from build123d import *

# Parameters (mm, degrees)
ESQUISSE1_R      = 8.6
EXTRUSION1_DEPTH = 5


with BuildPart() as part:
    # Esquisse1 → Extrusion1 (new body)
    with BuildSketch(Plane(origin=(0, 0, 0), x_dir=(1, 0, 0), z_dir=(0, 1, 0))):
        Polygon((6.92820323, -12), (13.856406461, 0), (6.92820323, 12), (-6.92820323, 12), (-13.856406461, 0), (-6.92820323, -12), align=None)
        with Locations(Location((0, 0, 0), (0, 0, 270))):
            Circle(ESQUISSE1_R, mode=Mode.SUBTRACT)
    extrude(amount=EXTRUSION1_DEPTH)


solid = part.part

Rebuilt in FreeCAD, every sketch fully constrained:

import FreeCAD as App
import Part
import Sketcher
from FreeCAD import Vector
Q = App.Units.Quantity


def add_polygon(sketch, points):
    """Adds a closed chain of lines whose ends are joined by coincident constraints."""
    first, n = sketch.GeometryCount, len(points)
    for a, b in zip(points, points[1:] + points[:1]):
        sketch.addGeometry(Part.LineSegment(App.Vector(*a, 0), App.Vector(*b, 0)), False)
    for i in range(n):
        sketch.addConstraint(Sketcher.Constraint("Coincident", first + i, 2, first + (i + 1) % n, 1))

doc = App.newDocument("Part")
body = doc.addObject("PartDesign::Body", "Body")

# Sketch on XZ plane
sketch1 = body.newObject("Sketcher::SketchObject", "Sketch")
sketch1.AttachmentSupport = (doc.getObject("XZ_Plane"), [""])
sketch1.MapMode = "FlatFace"
add_polygon(sketch1, [(7, 12), (14, 0), (7, -12), (-7, -12), (-14, 0), (-7, 12)])  # lines 0-5
sketch1.addGeometry(Part.Circle(Vector(0, 0, 0), Vector(0, 0, 1), 9), False)  # 6
sketch1.addConstraint(Sketcher.Constraint("Horizontal", 2))
sketch1.addConstraint(Sketcher.Constraint("Horizontal", 5))
sketch1.addConstraint(Sketcher.Constraint("Coincident", 6, 3, -1, 1))
sketch1.addConstraint(Sketcher.Constraint("Symmetric", 0, 2, 3, 2, -1, 1))
sketch1.addConstraint(Sketcher.Constraint("Symmetric", 1, 2, 4, 2, -1, 1))
sketch1.addConstraint(Sketcher.Constraint("PointOnObject", 0, 2, -1))
sketch1.addConstraint(Sketcher.Constraint("Parallel", 0, 3))
sketch1.addConstraint(Sketcher.Constraint("Vertical", 2, 2, 4, 2))
sketch1.addConstraint(Sketcher.Constraint("Diameter", 6, Q("17.2 mm")))
sketch1.addConstraint(Sketcher.Constraint("Angle", 0, Q("-60 deg")))
sketch1.addConstraint(Sketcher.Constraint("DistanceY", 1, 2, -1, 1, Q("12 mm")))
sketch1.addConstraint(Sketcher.Constraint("DistanceX", 2, 2, 2, 1, Q("13.856406 mm")))
pad1 = body.newObject("PartDesign::Pad", "Pad")
pad1.Profile = sketch1
pad1.Length = 5
pad1.Reversed = True

doc.recompute()
